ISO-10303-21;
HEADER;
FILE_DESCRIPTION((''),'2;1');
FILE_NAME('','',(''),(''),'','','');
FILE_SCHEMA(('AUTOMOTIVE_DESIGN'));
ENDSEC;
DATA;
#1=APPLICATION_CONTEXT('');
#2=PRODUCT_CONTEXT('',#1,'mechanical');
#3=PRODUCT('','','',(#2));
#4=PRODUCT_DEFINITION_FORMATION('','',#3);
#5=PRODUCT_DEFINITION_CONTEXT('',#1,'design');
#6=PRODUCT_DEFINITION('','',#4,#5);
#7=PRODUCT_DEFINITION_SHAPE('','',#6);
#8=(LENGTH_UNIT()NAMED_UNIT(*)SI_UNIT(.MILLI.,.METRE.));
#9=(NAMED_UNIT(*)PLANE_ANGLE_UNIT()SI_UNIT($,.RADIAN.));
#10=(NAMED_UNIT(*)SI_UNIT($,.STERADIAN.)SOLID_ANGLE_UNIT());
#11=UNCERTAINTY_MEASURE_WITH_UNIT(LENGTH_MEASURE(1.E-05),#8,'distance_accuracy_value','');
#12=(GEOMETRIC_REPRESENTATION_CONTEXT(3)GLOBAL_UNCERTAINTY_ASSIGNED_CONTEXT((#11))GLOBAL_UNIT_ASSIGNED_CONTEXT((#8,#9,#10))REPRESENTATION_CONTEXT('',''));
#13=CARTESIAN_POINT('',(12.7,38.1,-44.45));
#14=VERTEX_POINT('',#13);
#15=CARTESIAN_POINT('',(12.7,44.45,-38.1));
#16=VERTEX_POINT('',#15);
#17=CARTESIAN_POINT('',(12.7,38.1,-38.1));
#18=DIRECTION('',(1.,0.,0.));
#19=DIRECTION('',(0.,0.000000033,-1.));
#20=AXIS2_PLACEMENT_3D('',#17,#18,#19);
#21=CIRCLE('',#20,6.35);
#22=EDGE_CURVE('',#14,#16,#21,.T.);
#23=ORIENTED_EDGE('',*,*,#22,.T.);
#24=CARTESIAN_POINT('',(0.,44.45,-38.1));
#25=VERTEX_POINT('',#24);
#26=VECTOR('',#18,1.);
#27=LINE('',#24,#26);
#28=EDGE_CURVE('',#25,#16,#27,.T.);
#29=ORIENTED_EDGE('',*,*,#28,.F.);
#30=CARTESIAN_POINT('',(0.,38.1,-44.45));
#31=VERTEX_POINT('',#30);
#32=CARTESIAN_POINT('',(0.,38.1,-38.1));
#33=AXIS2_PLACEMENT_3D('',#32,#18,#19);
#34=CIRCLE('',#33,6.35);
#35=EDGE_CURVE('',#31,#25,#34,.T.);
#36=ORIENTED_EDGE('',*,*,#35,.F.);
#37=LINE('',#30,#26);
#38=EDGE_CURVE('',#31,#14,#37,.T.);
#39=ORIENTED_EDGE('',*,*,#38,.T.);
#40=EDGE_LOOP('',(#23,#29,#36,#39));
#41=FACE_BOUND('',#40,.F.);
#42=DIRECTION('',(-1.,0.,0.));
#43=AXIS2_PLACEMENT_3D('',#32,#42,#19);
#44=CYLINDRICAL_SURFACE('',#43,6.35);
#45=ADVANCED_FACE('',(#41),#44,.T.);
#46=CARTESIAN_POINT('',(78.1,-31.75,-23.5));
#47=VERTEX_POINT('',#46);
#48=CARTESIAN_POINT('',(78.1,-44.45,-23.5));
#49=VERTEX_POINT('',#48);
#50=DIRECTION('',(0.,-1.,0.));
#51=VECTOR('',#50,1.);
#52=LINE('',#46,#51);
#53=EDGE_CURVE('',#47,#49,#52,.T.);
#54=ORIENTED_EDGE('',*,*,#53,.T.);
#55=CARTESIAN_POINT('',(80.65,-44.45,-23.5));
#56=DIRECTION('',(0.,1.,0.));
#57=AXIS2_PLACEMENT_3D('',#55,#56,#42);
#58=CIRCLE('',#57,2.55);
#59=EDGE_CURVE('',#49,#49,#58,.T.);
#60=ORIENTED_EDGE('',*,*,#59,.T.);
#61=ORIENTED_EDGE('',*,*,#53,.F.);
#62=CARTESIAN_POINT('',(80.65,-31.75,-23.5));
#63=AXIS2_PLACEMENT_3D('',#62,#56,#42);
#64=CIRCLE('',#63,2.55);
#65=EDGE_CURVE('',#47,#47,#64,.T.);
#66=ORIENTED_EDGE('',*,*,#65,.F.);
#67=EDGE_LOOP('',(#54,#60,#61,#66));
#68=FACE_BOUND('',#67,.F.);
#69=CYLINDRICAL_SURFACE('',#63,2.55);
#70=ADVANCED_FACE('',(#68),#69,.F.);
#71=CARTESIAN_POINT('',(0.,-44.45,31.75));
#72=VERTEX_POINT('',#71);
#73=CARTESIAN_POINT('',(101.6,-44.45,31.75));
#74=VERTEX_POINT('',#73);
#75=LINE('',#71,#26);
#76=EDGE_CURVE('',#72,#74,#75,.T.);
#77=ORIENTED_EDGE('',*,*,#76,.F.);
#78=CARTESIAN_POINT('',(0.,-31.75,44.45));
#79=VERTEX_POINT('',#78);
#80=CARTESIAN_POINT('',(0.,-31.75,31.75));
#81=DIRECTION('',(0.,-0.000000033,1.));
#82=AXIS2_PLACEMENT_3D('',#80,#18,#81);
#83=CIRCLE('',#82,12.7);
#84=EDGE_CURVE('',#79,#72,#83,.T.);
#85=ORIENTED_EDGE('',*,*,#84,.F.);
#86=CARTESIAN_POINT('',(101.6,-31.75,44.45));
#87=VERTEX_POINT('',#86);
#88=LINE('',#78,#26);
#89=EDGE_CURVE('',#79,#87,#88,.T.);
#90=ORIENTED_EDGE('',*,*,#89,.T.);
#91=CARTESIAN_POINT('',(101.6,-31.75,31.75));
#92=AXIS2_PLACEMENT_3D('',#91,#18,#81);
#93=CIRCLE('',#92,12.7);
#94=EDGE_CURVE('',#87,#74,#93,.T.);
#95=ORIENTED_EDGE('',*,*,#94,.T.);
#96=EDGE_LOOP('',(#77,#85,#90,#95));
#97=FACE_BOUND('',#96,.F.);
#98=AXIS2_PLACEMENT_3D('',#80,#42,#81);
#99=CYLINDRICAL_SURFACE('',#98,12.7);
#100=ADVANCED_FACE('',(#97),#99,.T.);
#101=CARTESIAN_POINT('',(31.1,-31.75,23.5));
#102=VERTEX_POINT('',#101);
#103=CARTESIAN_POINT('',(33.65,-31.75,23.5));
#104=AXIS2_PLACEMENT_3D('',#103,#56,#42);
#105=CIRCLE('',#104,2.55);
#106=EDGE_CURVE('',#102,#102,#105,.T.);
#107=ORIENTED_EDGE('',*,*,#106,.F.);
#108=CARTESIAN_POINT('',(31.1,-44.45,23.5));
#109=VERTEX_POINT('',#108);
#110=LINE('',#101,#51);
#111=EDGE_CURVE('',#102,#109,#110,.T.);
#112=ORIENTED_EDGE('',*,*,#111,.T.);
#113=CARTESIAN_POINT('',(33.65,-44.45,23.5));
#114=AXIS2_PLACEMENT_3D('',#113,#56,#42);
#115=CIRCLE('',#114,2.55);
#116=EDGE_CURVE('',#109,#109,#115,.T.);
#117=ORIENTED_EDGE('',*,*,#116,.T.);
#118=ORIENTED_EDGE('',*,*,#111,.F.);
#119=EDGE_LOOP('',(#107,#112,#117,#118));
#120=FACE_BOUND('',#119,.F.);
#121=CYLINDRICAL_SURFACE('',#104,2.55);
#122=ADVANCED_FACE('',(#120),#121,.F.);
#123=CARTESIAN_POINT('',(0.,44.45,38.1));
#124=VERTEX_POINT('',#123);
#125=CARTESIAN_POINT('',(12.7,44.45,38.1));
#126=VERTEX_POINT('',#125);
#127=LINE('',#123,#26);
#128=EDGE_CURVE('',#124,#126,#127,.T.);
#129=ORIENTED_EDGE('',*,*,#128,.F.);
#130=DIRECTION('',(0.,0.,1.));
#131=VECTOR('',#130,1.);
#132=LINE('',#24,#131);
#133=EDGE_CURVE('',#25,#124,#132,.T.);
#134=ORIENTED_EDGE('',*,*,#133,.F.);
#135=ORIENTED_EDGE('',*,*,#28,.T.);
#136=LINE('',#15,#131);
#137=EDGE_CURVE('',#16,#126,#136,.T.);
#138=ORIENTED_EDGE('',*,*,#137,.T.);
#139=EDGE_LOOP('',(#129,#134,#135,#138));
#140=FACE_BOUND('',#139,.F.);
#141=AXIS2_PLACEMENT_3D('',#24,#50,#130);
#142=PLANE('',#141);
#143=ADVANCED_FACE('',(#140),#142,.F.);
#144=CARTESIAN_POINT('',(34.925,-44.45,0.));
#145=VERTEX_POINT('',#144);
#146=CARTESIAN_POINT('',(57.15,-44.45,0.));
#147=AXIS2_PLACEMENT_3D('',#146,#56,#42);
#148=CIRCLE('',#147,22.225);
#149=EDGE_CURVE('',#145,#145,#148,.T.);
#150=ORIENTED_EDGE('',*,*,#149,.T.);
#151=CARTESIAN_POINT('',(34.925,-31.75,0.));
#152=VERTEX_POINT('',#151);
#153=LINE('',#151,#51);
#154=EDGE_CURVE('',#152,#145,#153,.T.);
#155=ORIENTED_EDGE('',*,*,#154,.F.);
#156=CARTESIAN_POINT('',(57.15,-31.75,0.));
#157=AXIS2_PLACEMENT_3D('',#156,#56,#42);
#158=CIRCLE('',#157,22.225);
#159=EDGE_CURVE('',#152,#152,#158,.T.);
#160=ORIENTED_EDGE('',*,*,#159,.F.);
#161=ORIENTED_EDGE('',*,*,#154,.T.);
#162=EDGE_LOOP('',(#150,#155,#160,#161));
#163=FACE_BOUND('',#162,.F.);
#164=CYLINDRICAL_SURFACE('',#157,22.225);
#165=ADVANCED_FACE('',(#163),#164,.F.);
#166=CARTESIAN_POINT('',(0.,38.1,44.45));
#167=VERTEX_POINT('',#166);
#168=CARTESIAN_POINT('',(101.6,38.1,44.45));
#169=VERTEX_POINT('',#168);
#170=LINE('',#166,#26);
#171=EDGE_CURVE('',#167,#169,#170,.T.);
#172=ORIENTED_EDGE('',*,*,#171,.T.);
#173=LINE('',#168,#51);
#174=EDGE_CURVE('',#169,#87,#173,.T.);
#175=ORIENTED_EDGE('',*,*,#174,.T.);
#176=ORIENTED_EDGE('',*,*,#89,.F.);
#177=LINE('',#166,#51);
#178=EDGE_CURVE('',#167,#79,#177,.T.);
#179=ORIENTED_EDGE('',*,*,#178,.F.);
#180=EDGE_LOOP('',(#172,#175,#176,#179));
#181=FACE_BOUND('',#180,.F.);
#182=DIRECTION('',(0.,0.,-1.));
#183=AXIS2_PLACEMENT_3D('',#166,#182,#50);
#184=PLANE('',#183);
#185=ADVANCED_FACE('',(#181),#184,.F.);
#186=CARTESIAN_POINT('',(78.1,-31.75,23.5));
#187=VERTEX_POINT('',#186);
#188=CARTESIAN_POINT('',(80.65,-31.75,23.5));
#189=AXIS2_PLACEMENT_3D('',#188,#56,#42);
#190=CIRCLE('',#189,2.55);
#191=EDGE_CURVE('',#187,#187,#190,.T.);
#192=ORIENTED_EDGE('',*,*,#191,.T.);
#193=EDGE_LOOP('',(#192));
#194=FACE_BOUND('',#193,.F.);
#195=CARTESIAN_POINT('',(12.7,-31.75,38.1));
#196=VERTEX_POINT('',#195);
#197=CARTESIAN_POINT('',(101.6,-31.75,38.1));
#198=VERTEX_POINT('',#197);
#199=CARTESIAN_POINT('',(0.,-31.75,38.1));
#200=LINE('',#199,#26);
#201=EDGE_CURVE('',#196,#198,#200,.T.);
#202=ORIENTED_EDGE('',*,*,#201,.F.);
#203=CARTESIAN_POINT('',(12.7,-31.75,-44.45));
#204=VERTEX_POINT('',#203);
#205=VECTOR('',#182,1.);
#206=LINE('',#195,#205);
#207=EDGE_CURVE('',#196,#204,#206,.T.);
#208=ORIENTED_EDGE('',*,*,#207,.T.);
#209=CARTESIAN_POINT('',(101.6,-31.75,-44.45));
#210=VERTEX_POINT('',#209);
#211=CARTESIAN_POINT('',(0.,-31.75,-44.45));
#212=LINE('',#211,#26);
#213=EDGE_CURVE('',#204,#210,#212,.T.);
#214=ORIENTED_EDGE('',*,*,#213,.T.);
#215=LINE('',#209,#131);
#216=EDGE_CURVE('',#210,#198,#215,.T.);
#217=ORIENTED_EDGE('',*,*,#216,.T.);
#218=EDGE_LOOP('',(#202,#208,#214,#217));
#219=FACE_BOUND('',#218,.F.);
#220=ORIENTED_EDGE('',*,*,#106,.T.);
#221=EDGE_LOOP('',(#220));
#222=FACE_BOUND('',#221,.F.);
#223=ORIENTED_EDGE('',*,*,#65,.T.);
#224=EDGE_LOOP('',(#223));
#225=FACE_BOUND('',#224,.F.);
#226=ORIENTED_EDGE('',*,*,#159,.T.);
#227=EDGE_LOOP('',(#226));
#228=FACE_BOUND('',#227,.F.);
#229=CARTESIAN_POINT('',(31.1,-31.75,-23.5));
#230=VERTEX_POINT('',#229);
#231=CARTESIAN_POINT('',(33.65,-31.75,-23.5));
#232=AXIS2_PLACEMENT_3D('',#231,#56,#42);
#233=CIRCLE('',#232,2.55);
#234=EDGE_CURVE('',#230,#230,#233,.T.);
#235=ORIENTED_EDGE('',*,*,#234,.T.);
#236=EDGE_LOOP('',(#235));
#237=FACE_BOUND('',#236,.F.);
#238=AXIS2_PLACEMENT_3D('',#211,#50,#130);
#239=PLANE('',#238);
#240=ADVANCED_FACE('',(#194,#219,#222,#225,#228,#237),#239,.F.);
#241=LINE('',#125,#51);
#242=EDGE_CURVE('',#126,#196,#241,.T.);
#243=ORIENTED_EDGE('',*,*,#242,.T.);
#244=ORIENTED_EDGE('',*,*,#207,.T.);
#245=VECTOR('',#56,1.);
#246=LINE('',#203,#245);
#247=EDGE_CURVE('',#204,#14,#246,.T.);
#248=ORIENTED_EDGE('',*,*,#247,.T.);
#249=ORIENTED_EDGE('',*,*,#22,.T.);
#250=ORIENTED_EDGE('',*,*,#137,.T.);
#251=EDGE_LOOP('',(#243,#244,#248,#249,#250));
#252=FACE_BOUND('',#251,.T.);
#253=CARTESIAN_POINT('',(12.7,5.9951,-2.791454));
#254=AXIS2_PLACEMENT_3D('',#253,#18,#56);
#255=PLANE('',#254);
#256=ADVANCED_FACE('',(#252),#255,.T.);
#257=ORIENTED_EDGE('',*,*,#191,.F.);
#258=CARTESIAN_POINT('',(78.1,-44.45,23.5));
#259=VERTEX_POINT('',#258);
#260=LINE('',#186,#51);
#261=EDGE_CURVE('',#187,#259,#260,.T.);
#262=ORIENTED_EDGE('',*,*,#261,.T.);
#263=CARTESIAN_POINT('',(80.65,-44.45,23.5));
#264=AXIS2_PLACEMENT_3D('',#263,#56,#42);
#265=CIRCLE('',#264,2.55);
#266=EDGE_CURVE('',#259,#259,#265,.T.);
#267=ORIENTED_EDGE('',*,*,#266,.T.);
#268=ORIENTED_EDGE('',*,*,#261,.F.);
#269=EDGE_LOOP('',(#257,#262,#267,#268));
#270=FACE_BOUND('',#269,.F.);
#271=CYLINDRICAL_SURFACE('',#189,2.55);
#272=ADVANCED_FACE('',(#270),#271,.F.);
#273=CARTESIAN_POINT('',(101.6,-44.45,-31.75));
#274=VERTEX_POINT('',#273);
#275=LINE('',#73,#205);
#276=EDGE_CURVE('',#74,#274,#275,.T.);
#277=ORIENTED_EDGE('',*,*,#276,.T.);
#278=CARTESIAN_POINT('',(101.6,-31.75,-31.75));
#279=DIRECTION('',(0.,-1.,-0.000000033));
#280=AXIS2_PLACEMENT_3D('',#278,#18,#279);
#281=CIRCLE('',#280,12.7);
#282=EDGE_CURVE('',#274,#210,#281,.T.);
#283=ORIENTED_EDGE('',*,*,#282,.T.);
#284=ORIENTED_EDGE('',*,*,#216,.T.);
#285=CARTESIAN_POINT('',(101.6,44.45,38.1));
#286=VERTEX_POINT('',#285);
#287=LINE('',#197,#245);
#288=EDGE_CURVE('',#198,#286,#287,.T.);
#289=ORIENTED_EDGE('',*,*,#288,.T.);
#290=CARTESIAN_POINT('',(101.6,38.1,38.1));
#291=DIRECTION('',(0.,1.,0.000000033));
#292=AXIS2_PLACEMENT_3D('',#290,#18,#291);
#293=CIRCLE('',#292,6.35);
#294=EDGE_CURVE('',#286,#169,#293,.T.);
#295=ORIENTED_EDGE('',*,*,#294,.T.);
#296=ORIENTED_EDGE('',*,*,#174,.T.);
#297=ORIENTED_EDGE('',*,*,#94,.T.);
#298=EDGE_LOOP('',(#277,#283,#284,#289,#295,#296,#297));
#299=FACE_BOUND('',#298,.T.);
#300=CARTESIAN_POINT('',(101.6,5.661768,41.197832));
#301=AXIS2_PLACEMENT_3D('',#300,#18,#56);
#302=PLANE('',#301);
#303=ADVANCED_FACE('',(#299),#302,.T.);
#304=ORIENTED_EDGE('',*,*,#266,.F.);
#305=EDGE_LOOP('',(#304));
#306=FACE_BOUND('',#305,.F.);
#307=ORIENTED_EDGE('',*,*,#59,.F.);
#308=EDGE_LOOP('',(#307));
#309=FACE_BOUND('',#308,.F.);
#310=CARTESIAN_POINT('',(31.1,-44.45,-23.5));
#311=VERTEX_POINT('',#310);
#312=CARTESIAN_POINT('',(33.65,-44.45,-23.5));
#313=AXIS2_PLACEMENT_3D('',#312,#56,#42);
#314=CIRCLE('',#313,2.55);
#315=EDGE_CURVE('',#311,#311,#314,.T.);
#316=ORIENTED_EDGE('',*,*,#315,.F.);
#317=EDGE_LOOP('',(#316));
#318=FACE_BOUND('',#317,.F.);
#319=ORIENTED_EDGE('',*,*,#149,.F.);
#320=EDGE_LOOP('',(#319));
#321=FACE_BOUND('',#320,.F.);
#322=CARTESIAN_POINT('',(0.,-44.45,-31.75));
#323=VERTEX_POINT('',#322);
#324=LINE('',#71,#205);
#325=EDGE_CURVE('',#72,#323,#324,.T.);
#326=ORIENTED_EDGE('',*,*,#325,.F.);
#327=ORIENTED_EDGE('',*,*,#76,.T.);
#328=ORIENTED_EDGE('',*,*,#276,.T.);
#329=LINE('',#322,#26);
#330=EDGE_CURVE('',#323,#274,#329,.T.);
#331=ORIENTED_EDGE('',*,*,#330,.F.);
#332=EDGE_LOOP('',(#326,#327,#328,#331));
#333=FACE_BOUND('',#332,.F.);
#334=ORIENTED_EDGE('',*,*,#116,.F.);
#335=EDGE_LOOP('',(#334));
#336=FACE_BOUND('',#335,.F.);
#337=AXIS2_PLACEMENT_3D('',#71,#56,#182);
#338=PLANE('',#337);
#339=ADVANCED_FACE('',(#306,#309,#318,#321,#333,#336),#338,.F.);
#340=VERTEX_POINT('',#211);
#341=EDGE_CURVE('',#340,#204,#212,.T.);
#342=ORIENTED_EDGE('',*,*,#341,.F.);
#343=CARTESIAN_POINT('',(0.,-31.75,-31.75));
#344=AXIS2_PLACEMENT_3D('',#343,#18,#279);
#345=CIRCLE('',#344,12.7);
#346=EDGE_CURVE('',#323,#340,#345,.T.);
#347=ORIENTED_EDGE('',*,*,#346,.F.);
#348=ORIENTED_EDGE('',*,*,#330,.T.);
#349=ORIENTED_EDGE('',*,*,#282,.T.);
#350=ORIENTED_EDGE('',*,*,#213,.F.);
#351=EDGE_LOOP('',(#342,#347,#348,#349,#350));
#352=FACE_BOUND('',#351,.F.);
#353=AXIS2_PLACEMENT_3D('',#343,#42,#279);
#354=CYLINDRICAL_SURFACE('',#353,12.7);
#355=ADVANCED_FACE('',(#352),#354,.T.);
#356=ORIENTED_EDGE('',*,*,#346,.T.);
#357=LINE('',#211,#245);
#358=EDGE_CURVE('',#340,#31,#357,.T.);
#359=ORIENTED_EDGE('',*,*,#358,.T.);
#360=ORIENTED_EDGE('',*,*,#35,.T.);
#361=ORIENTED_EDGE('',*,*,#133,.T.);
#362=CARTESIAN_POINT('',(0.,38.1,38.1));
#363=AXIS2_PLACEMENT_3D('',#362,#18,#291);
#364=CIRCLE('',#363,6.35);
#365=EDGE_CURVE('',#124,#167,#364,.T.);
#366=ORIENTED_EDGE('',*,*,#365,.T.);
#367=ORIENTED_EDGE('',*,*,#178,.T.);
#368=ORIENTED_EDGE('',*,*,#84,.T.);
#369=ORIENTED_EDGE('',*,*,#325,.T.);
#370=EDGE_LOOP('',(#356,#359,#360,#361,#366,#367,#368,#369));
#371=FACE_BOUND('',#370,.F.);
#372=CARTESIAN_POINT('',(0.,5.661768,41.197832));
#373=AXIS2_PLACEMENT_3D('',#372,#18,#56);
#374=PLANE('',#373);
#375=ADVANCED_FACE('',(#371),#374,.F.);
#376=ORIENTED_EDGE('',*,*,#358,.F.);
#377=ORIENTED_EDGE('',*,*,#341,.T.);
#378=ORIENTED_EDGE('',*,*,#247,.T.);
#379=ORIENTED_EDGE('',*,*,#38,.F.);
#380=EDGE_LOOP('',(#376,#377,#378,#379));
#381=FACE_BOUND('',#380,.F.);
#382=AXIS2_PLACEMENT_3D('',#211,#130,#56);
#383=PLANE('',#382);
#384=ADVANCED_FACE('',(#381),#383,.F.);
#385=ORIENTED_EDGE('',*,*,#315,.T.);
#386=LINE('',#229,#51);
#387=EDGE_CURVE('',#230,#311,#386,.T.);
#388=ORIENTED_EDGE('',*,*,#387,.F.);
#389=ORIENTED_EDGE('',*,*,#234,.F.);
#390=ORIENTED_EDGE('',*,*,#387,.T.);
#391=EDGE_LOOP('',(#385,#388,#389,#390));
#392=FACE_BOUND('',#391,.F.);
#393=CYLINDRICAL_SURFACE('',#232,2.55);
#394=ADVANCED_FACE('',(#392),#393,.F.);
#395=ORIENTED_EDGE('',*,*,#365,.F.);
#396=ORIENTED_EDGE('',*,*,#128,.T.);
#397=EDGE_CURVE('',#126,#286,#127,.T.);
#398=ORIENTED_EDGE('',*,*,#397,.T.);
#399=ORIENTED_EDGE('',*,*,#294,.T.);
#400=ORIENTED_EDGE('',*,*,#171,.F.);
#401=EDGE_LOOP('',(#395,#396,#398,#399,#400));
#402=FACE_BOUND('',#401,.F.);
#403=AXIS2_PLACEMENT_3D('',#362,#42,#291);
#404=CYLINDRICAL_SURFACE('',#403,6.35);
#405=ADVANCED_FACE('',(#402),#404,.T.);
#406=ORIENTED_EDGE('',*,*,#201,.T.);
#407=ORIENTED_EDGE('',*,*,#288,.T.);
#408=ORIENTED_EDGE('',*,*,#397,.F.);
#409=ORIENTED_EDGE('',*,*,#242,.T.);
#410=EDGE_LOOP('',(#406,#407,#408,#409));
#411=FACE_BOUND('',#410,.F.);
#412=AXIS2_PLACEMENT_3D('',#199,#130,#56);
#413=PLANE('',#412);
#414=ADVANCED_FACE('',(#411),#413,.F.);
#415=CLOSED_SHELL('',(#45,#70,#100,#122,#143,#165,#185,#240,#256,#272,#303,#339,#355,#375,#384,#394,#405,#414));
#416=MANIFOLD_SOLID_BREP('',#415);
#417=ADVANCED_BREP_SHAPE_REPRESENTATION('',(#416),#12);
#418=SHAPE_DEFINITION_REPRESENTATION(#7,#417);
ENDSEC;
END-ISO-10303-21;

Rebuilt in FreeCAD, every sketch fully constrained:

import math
import FreeCAD as App
import Part
import Sketcher
from FreeCAD import Vector
Q = App.Units.Quantity

doc = App.newDocument("Part")
body = doc.addObject("PartDesign::Body", "Body")

sketch1 = body.newObject("Sketcher::SketchObject", "Sketch")
sketch1.AttachmentSupport = (doc.getObject("YZ_Plane"), [""])
sketch1.MapMode = "FlatFace"
sketch1.addGeometry(Part.ArcOfCircle(Part.Circle(Vector(-32, -32, 0), Vector(0, 0, 1), 13), math.radians(-180), math.radians(-90)), False)
sketch1.addGeometry(Part.LineSegment(Vector(-32, -44, 0), Vector(-32, 44, 0)), False)
sketch1.addGeometry(Part.ArcOfCircle(Part.Circle(Vector(-32, 32, 0), Vector(0, 0, 1), 13), math.radians(90), math.radians(180)), False)
sketch1.addGeometry(Part.LineSegment(Vector(-44, 32, 0), Vector(-44, -32, 0)), False)
sketch1.addConstraint(Sketcher.Constraint("Coincident", 0, 2, 1, 1))
sketch1.addConstraint(Sketcher.Constraint("Coincident", 1, 2, 2, 1))
sketch1.addConstraint(Sketcher.Constraint("Tangent", 2, 2, 3, 1))
sketch1.addConstraint(Sketcher.Constraint("Tangent", 3, 2, 0, 1))
sketch1.addConstraint(Sketcher.Constraint("Vertical", 1))
sketch1.addConstraint(Sketcher.Constraint("Vertical", 3))
sketch1.addConstraint(Sketcher.Constraint("Equal", 0, 2))
sketch1.addConstraint(Sketcher.Constraint("Vertical", 2, 3, 0, 2))
sketch1.addConstraint(Sketcher.Constraint("Radius", 0, Q("0.5 in")))
sketch1.addConstraint(Sketcher.Constraint("DistanceY", 1, 1, 1, 2, Q("3.5 in")))
sketch1.addConstraint(Sketcher.Constraint("DistanceX", 0, 3, -1, 1, Q("1.25 in")))
sketch1.addConstraint(Sketcher.Constraint("DistanceY", 0, 3, -1, 1, Q("1.25 in")))
pad1 = body.newObject("PartDesign::Pad", "Pad")
pad1.Profile = sketch1
pad1.Length = Q("4 in")

sketch2 = body.newObject("Sketcher::SketchObject", "Sketch001")
sketch2.AttachmentSupport = (doc.getObject("YZ_Plane"), [""])
sketch2.MapMode = "FlatFace"
sketch2.addGeometry(Part.LineSegment(Vector(-32, -44, 0), Vector(38, -44, 0)), False)
sketch2.addGeometry(Part.ArcOfCircle(Part.Circle(Vector(38, -38, 0), Vector(0, 0, 1), 6), math.radians(-90), math.radians(0)), False)
sketch2.addGeometry(Part.LineSegment(Vector(44, -38, 0), Vector(44, 38, 0)), False)
sketch2.addGeometry(Part.LineSegment(Vector(44, 38, 0), Vector(-32, 38, 0)), False)
sketch2.addGeometry(Part.LineSegment(Vector(-32, 38, 0), Vector(-32, -44, 0)), False)
sketch2.addConstraint(Sketcher.Constraint("Tangent", 0, 2, 1, 1))
sketch2.addConstraint(Sketcher.Constraint("Tangent", 1, 2, 2, 1))
sketch2.addConstraint(Sketcher.Constraint("Coincident", 2, 2, 3, 1))
sketch2.addConstraint(Sketcher.Constraint("Coincident", 3, 2, 4, 1))
sketch2.addConstraint(Sketcher.Constraint("Coincident", 4, 2, 0, 1))
sketch2.addConstraint(Sketcher.Constraint("Horizontal", 0))
sketch2.addConstraint(Sketcher.Constraint("Vertical", 2))
sketch2.addConstraint(Sketcher.Constraint("Horizontal", 3))
sketch2.addConstraint(Sketcher.Constraint("Vertical", 4))
sketch2.addConstraint(Sketcher.Constraint("Equal", 3, 2))
sketch2.addConstraint(Sketcher.Constraint("DistanceX", 3, 2, 3, 1, Q("3 in")))
sketch2.addConstraint(Sketcher.Constraint("Radius", 1, Q("0.25 in")))
sketch2.addConstraint(Sketcher.Constraint("DistanceX", -1, 1, 1, 3, Q("1.5 in")))
sketch2.addConstraint(Sketcher.Constraint("DistanceY", 1, 3, -1, 1, Q("1.5 in")))
pad2 = body.newObject("PartDesign::Pad", "Pad001")
pad2.Profile = sketch2
pad2.Length = Q("0.5 in")

sketch3 = body.newObject("Sketcher::SketchObject", "Sketch002")
sketch3.AttachmentSupport = (doc.getObject("XZ_Plane"), [""])
sketch3.MapMode = "FlatFace"
sketch3.AttachmentOffset = App.Placement(Vector(0, 0, 1.25 * 25.4), App.Rotation())
sketch3.addGeometry(Part.Circle(Vector(57.1, 0, 0), Vector(0, 0, 1), 22.2), False)
sketch3.addGeometry(Part.Circle(Vector(33.6, -23.5, 0), Vector(0, 0, 1), 2.5), False)
sketch3.addGeometry(Part.Circle(Vector(80.7, -23.5, 0), Vector(0, 0, 1), 2.5), False)
sketch3.addGeometry(Part.Circle(Vector(80.7, 23.5, 0), Vector(0, 0, 1), 2.5), False)
sketch3.addGeometry(Part.Circle(Vector(33.6, 23.5, 0), Vector(0, 0, 1), 2.5), False)
sketch3.addConstraint(Sketcher.Constraint("Equal", 1, 2))
sketch3.addConstraint(Sketcher.Constraint("Equal", 2, 3))
sketch3.addConstraint(Sketcher.Constraint("Equal", 3, 4))
sketch3.addConstraint(Sketcher.Constraint("Symmetric", 2, 3, 3, 3, -1))
sketch3.addConstraint(Sketcher.Constraint("Symmetric", 1, 3, 4, 3, -1))
sketch3.addConstraint(Sketcher.Constraint("PointOnObject", 0, 3, -1))
sketch3.addConstraint(Sketcher.Constraint("Horizontal", 1, 3, 2, 3))
sketch3.addConstraint(Sketcher.Constraint("Diameter", 0, Q("1.75 in")))
sketch3.addConstraint(Sketcher.Constraint("Diameter", 1, Q("5.1 mm")))
sketch3.addConstraint(Sketcher.Constraint("DistanceX", -1, 1, 0, 3, Q("2.25 in")))
sketch3.addConstraint(Sketcher.Constraint("DistanceX", -1, 1, 1, 3, Q("33.65 mm")))
sketch3.addConstraint(Sketcher.Constraint("DistanceY", 1, 3, -1, 1, Q("23.5 mm")))
sketch3.addConstraint(Sketcher.Constraint("DistanceX", -1, 1, 2, 3, Q("80.65 mm")))
pocket1 = body.newObject("PartDesign::Pocket", "Pocket")
pocket1.Profile = sketch3
pocket1.Type = "ThroughAll"
pocket1.Reversed = True

sketch4 = body.newObject("Sketcher::SketchObject", "Sketch003")
sketch4.AttachmentSupport = (doc.getObject("YZ_Plane"), [""])
sketch4.MapMode = "FlatFace"
sketch4.addGeometry(Part.LineSegment(Vector(-32, 44, 0), Vector(-32, 38, 0)), False)
sketch4.addGeometry(Part.LineSegment(Vector(-32, 38, 0), Vector(44, 38, 0)), False)
sketch4.addGeometry(Part.ArcOfCircle(Part.Circle(Vector(38, 38, 0), Vector(0, 0, 1), 6), math.radians(0), math.radians(90)), False)
sketch4.addGeometry(Part.LineSegment(Vector(38, 44, 0), Vector(-32, 44, 0)), False)
sketch4.addConstraint(Sketcher.Constraint("Coincident", 0, 2, 1, 1))
sketch4.addConstraint(Sketcher.Constraint("Coincident", 1, 2, 2, 1))
sketch4.addConstraint(Sketcher.Constraint("Tangent", 2, 2, 3, 1))
sketch4.addConstraint(Sketcher.Constraint("Coincident", 3, 2, 0, 1))
sketch4.addConstraint(Sketcher.Constraint("Vertical", 0))
sketch4.addConstraint(Sketcher.Constraint("Horizontal", 1))
sketch4.addConstraint(Sketcher.Constraint("Horizontal", 3))
sketch4.addConstraint(Sketcher.Constraint("Horizontal", 2, 3, 0, 2))
sketch4.addConstraint(Sketcher.Constraint("DistanceX", 1, 1, 1, 2, Q("3 in")))
sketch4.addConstraint(Sketcher.Constraint("Radius", 2, Q("0.25 in")))
sketch4.addConstraint(Sketcher.Constraint("DistanceX", -1, 1, 2, 3, Q("1.5 in")))
sketch4.addConstraint(Sketcher.Constraint("DistanceY", -1, 1, 2, 3, Q("1.5 in")))
pad3 = body.newObject("PartDesign::Pad", "Pad002")
pad3.Profile = sketch4
pad3.Length = Q("4 in")

doc.recompute()
